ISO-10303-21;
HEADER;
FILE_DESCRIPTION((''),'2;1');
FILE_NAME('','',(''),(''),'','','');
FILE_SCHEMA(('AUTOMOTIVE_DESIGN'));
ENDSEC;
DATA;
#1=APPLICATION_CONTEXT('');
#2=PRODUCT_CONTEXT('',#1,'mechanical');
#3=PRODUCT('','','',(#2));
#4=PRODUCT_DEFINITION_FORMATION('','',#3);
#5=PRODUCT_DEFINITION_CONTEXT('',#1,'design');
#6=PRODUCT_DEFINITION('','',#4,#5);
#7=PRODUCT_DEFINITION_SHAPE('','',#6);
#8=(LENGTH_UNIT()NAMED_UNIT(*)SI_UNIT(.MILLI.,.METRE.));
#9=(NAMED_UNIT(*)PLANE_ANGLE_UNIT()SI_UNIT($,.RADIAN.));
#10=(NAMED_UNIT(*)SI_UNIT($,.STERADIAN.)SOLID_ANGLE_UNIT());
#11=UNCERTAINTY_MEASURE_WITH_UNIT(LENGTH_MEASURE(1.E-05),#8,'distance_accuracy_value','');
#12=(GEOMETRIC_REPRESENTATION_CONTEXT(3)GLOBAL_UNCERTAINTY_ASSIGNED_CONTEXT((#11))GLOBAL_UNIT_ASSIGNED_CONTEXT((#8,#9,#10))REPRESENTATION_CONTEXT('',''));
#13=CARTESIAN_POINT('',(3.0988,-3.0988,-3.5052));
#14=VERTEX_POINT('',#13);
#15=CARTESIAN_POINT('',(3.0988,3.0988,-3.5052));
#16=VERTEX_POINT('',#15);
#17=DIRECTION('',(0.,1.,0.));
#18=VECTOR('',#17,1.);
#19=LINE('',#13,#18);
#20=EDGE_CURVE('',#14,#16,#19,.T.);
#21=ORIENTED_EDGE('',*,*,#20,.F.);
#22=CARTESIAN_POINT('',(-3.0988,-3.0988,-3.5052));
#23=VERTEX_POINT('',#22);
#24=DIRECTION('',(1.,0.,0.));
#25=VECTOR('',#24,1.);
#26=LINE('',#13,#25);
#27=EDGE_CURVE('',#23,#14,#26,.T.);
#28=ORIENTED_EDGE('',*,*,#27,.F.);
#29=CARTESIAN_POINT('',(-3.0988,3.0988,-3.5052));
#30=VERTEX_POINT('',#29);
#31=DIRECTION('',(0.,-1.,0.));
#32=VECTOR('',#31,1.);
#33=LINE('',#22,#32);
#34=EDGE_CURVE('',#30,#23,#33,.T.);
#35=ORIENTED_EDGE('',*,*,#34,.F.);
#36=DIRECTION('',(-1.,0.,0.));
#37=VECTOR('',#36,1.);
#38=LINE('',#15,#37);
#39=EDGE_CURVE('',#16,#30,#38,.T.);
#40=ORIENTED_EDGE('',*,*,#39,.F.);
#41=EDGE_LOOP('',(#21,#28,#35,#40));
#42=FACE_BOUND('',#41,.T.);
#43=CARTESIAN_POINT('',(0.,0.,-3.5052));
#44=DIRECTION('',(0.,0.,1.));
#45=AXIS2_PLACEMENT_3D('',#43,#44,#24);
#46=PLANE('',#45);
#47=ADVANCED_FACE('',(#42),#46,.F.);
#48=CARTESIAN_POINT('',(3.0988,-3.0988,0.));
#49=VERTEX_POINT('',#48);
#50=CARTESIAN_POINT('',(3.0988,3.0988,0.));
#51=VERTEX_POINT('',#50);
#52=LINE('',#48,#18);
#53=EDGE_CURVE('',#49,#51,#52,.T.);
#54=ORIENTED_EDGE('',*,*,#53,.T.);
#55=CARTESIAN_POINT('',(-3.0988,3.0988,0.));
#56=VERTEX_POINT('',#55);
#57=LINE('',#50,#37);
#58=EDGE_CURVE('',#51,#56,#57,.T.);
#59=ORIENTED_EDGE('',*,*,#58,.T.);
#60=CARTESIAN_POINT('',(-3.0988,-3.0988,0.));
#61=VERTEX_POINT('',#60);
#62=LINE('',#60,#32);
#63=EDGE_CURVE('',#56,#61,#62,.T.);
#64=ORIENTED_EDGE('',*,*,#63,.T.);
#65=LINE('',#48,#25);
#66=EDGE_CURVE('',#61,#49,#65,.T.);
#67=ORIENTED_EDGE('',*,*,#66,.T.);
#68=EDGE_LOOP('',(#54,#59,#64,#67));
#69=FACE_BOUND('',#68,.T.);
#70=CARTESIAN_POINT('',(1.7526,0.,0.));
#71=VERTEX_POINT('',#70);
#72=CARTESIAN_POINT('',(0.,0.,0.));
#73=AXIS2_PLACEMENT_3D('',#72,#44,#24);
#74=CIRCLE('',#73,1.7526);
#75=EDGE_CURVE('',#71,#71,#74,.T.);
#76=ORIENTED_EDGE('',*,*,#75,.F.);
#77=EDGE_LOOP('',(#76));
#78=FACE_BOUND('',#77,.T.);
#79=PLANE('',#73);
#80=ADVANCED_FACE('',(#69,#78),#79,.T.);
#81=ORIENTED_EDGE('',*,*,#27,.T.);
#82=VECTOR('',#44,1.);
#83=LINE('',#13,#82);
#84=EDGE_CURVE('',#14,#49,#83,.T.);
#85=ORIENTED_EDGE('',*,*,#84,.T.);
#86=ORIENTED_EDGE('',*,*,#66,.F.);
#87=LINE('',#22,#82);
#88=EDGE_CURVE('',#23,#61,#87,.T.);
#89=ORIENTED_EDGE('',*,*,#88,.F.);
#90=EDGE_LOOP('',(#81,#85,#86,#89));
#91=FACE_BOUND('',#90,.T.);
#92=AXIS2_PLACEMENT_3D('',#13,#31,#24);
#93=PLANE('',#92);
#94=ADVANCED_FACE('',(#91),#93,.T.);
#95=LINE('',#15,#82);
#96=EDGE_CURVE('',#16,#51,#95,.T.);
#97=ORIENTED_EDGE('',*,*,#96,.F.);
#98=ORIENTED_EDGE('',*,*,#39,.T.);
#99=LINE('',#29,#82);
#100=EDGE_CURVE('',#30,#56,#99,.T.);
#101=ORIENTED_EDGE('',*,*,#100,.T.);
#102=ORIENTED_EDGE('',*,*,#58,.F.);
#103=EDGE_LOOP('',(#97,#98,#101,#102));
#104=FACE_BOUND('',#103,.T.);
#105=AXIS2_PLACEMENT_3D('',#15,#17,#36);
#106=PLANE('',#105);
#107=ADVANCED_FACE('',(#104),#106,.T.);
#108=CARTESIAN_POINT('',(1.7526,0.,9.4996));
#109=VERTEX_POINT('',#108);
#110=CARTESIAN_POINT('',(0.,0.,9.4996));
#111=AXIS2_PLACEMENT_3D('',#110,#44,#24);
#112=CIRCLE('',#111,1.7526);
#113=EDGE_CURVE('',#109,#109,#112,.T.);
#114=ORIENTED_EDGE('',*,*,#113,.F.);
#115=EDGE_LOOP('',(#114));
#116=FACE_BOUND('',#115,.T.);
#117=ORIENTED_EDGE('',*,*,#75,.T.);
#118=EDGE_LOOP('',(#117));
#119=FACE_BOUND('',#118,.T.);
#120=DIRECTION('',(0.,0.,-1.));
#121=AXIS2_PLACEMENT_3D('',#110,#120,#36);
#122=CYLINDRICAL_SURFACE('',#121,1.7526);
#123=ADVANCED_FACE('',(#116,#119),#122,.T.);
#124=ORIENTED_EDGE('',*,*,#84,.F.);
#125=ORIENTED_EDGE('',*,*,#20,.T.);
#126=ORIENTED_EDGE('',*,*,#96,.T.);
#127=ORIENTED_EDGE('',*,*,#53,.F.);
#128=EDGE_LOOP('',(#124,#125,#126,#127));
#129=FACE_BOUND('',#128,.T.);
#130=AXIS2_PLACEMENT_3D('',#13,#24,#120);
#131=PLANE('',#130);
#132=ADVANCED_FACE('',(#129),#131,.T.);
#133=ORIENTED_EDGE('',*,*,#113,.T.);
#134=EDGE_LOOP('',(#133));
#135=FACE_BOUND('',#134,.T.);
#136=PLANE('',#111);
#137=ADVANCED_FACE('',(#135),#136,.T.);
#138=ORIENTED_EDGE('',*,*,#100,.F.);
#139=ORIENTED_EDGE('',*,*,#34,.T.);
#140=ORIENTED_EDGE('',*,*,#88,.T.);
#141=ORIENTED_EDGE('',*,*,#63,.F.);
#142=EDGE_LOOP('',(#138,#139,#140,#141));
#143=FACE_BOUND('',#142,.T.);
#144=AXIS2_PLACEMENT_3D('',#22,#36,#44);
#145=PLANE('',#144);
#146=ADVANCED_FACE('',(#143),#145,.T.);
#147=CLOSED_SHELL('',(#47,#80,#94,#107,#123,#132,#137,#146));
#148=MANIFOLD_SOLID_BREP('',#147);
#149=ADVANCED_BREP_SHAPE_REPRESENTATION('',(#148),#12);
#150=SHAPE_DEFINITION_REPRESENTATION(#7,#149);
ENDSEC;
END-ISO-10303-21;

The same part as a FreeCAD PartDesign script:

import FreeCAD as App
import Part
import Sketcher
from FreeCAD import Vector
Q = App.Units.Quantity

doc = App.newDocument("Part")
params = doc.addObject("Spreadsheet::Sheet", "Params")
for row, (alias, value) in enumerate([
    ("sketch1_width", "0.244 in"),
    ("pad1_length", "0.138 in"),
    ("sketch2_diameter", "0.138 in"),
    ("pad2_length", "0.374 in"),
], start=1):
    params.set(f"A{row}", alias)
    params.set(f"B{row}", "=" + value)
    params.setAlias(f"B{row}", alias)

body = doc.addObject("PartDesign::Body", "Body")

# Sketch on XY plane
sketch1 = body.newObject("Sketcher::SketchObject", "Sketch")
sketch1.AttachmentSupport = (doc.getObject("XY_Plane"), [""])
sketch1.MapMode = "FlatFace"
sketch1.addGeometry(Part.LineSegment(Vector(-3, 3, 0), Vector(-3, -3, 0)), False)
sketch1.addGeometry(Part.LineSegment(Vector(-3, -3, 0), Vector(3, -3, 0)), False)
sketch1.addGeometry(Part.LineSegment(Vector(3, -3, 0), Vector(3, 3, 0)), False)
sketch1.addGeometry(Part.LineSegment(Vector(3, 3, 0), Vector(-3, 3, 0)), False)
sketch1.addConstraint(Sketcher.Constraint("Coincident", 0, 2, 1, 1))
sketch1.addConstraint(Sketcher.Constraint("Coincident", 1, 2, 2, 1))
sketch1.addConstraint(Sketcher.Constraint("Coincident", 2, 2, 3, 1))
sketch1.addConstraint(Sketcher.Constraint("Coincident", 3, 2, 0, 1))
sketch1.addConstraint(Sketcher.Constraint("Vertical", 0))
sketch1.addConstraint(Sketcher.Constraint("Horizontal", 1))
sketch1.addConstraint(Sketcher.Constraint("Vertical", 2))
sketch1.addConstraint(Sketcher.Constraint("Horizontal", 3))
sketch1.addConstraint(Sketcher.Constraint("Symmetric", 0, 2, 2, 2, -1, 1))
sketch1.addConstraint(Sketcher.Constraint("Equal", 3, 0))
sketch1.addConstraint(Sketcher.Constraint("DistanceX", 1, 1, 1, 2, Q("0.244 in")))
sketch1.setExpression("Constraints[10]", "Params.sketch1_width")
pad1 = body.newObject("PartDesign::Pad", "Pad")
pad1.Profile = sketch1
pad1.setExpression("Length", "Params.pad1_length")
pad1.Reversed = True

# Sketch on XY plane
sketch2 = body.newObject("Sketcher::SketchObject", "Sketch001")
sketch2.AttachmentSupport = (doc.getObject("XY_Plane"), [""])
sketch2.MapMode = "FlatFace"
sketch2.addGeometry(Part.Circle(Vector(0, 0, 0), Vector(0, 0, 1), 1.8), False)
sketch2.addConstraint(Sketcher.Constraint("Coincident", 0, 3, -1, 1))
sketch2.addConstraint(Sketcher.Constraint("Diameter", 0, Q("0.138 in")))
sketch2.setExpression("Constraints[1]", "Params.sketch2_diameter")
pad2 = body.newObject("PartDesign::Pad", "Pad001")
pad2.Profile = sketch2
pad2.setExpression("Length", "Params.pad2_length")

doc.recompute()
